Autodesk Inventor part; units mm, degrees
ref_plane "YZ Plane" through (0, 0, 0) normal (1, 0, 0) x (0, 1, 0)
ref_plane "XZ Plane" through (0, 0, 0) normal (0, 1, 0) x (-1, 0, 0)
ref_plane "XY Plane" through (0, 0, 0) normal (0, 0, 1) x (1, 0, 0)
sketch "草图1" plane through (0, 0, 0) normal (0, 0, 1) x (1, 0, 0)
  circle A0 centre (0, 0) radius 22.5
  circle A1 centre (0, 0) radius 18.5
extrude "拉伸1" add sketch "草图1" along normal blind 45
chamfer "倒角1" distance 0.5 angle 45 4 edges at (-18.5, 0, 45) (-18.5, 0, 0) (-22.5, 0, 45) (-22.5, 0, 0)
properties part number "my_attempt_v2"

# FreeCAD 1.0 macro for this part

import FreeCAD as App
import Part
import Sketcher


def edges_at(feature, points):
    """Names of the edges that pass closest to the given points."""
    edges = feature.Shape.Edges
    near = lambda p: min(range(len(edges)), key=lambda i: edges[i].distToShape(Part.Vertex(*p))[0])
    return sorted({f"Edge{near(p) + 1}" for p in points})

doc = App.newDocument("Part")
params = doc.addObject("Spreadsheet::Sheet", "Params")
for row, (alias, value) in enumerate([
    ("sketch1_diameter", "45 mm"),
    ("sketch1_diameter2", "37 mm"),
    ("pad1_length", "45 mm"),
    ("chamfer_size", "0.5 mm"),
], start=1):
    params.set(f"A{row}", alias)
    params.set(f"B{row}", "=" + value)
    params.setAlias(f"B{row}", alias)

body = doc.addObject("PartDesign::Body", "Body")

# Sketch on XY plane
sketch1 = doc.addObject("Sketcher::SketchObject", "Sketch")
body.addObject(sketch1)
sketch1.AttachmentSupport = (doc.XY_Plane, [""])
sketch1.MapMode = "FlatFace"
sketch1.addGeometry([
    Part.Circle(App.Vector(0, 0, 0), App.Vector(0, 0, 1), 22),
    Part.Circle(App.Vector(0, 0, 0), App.Vector(0, 0, 1), 18),
], False)
sketch1.addConstraint([
    Sketcher.Constraint("Coincident", 0, 3, -1, 1),
    Sketcher.Constraint("Coincident", 1, 3, -1, 1),
    Sketcher.Constraint("Diameter", 0, 45.0),
    Sketcher.Constraint("Diameter", 1, 37.0),
])
sketch1.setExpression("Constraints[2]", "Params.sketch1_diameter")
sketch1.setExpression("Constraints[3]", "Params.sketch1_diameter2")
pad1 = doc.addObject("PartDesign::Pad", "Pad")
body.addObject(pad1)
pad1.Profile = sketch1
pad1.setExpression("Length", "Params.pad1_length")
doc.recompute()

chamfer = doc.addObject("PartDesign::Chamfer", "Chamfer")
body.addObject(chamfer)
chamfer.Base = (pad1, edges_at(pad1, [
    (-18.5, 0, 45),
    (-18.5, 0, 0),
    (-22.5, 0, 45),
    (-22.5, 0, 0),
]))
chamfer.setExpression("Size", "Params.chamfer_size")

doc.recompute()
